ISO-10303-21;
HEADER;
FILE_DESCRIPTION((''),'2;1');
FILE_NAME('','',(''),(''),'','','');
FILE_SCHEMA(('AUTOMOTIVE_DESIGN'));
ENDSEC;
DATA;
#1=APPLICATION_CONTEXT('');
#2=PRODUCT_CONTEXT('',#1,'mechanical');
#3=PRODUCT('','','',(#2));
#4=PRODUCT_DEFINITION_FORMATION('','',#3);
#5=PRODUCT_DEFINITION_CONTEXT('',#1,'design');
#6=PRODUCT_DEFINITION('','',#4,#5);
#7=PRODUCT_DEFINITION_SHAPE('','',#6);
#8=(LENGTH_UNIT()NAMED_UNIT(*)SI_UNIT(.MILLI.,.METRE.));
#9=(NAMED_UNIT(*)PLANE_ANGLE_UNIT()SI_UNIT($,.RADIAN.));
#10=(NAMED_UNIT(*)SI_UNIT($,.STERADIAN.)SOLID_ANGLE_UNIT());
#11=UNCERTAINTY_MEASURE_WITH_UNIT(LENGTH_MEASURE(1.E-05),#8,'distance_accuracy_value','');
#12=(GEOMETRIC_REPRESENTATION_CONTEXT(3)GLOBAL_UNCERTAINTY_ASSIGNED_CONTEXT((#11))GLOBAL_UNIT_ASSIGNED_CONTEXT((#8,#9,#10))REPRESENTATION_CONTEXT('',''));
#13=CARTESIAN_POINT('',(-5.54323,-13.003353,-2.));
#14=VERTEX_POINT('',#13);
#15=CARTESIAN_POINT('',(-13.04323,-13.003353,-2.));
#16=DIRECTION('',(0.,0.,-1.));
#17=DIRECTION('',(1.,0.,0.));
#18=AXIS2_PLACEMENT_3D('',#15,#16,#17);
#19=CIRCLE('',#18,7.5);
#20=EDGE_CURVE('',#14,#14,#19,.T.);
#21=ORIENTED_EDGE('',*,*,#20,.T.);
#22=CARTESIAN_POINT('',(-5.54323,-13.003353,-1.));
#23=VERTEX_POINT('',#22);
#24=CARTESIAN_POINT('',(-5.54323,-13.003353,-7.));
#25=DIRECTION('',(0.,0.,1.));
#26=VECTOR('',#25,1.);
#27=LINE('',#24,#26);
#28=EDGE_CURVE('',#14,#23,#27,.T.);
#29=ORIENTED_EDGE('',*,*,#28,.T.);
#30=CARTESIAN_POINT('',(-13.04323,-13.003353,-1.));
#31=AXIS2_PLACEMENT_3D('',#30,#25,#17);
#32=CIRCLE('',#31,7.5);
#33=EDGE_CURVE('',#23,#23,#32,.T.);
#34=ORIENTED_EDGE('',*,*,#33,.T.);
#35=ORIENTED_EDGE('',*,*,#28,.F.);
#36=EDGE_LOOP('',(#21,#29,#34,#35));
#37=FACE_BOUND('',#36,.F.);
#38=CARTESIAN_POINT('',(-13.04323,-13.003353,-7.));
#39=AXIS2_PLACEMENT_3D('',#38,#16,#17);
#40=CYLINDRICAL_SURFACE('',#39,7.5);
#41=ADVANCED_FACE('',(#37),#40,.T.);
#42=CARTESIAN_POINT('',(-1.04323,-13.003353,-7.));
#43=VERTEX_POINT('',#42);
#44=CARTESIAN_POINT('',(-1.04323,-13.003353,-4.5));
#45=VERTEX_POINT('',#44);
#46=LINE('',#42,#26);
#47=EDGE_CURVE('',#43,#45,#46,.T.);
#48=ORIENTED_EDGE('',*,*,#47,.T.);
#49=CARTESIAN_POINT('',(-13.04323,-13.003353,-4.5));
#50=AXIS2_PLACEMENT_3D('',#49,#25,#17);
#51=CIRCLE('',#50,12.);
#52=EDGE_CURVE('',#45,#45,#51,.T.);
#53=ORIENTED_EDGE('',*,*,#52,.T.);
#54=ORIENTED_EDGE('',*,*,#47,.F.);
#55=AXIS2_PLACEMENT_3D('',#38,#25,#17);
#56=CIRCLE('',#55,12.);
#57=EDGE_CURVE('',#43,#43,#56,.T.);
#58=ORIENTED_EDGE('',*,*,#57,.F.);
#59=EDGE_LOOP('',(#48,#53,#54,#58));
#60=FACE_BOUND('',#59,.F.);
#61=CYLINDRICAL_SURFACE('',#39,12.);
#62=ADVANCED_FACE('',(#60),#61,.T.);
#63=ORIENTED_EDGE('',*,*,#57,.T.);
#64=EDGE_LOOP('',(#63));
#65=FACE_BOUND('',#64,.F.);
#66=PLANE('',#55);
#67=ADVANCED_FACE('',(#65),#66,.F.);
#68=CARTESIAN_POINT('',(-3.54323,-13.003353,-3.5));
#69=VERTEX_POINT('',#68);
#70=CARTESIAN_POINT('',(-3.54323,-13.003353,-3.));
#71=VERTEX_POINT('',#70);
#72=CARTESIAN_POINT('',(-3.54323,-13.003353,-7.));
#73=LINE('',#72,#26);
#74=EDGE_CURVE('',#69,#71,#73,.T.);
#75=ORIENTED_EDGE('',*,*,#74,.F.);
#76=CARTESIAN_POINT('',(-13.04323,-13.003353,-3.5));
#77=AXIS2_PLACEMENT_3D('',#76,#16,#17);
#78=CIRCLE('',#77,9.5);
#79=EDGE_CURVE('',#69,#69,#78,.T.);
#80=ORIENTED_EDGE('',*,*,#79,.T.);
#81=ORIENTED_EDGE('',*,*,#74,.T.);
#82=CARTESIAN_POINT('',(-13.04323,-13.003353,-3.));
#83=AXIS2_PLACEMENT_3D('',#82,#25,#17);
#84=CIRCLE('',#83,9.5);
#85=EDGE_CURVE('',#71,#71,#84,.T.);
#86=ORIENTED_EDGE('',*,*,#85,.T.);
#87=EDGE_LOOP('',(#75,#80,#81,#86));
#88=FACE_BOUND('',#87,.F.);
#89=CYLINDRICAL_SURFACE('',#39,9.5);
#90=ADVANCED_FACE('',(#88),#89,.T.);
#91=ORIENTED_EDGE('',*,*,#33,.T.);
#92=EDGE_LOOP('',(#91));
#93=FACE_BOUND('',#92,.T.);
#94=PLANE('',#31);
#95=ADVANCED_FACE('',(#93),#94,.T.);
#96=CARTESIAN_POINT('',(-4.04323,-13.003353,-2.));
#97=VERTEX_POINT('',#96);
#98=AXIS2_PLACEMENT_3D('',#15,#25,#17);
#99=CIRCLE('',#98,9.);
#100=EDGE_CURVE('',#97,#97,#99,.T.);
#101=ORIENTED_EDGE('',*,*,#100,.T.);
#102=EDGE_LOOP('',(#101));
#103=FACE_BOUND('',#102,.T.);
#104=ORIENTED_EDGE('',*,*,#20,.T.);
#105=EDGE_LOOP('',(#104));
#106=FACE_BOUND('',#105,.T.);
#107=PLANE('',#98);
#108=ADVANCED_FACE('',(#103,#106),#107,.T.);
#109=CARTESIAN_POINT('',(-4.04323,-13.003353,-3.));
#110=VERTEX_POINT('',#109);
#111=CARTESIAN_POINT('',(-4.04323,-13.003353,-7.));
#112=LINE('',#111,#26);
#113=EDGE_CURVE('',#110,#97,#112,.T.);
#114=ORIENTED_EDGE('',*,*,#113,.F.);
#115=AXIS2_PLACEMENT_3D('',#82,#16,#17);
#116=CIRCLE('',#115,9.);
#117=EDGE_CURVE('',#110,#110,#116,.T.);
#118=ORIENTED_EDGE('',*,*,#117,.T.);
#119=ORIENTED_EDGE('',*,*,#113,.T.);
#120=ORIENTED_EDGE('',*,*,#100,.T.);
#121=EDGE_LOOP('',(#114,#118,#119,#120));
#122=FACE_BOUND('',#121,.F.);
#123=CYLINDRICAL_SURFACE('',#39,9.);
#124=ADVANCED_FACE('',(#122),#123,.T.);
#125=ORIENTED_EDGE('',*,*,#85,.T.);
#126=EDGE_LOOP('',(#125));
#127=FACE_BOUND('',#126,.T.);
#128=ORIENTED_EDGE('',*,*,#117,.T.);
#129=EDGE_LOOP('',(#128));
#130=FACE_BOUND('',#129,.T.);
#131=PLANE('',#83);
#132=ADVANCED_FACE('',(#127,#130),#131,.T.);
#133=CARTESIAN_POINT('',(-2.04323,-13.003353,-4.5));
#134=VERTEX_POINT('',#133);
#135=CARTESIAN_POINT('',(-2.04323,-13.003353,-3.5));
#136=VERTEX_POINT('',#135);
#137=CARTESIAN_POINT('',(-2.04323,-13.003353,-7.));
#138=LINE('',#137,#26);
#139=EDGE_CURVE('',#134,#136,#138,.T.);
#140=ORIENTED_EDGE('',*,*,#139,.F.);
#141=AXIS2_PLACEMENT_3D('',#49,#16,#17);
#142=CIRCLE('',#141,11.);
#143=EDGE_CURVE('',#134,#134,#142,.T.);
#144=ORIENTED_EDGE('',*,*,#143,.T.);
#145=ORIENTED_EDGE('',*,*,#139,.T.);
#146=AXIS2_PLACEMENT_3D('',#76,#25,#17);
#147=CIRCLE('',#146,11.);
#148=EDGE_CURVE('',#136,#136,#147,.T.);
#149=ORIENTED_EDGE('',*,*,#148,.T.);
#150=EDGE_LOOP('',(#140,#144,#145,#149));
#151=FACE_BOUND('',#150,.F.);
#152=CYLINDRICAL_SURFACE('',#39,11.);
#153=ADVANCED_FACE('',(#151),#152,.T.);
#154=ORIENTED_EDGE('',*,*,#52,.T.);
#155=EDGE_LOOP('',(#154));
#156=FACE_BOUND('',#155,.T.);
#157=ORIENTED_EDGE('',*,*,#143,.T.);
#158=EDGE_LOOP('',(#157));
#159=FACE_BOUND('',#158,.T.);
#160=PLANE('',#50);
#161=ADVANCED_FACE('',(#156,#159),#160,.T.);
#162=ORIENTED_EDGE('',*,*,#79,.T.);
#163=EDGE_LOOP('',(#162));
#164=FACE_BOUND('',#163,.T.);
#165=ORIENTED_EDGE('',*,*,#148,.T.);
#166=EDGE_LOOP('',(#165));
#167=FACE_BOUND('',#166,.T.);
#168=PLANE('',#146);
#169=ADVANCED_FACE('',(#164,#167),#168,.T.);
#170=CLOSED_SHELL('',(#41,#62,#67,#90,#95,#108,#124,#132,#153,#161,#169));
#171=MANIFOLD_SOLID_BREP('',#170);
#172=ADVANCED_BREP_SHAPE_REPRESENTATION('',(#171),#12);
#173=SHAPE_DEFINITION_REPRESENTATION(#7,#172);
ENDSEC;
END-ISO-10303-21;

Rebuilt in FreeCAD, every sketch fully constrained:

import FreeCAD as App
import Part
import Sketcher

doc = App.newDocument("Part")
body = doc.addObject("PartDesign::Body", "Body")

sketch1 = doc.addObject("Sketcher::SketchObject", "Sketch")
body.addObject(sketch1)
sketch1.AttachmentSupport = (doc.XY_Plane, [""])
sketch1.MapMode = "FlatFace"
sketch1.addGeometry(Part.Circle(App.Vector(0, 0, 0), App.Vector(0, 0, 1), 9), False)
sketch1.addConstraint(Sketcher.Constraint("Coincident", 0, 3, -1, 1))
sketch1.addConstraint(Sketcher.Constraint("Diameter", 0, 18.0))
pad1 = doc.addObject("PartDesign::Pad", "Pad")
body.addObject(pad1)
pad1.Profile = sketch1
pad1.Length = 5
body2 = doc.addObject("PartDesign::Body", "Body001")

sketch2 = doc.addObject("Sketcher::SketchObject", "Sketch001")
body2.addObject(sketch2)
sketch2.AttachmentSupport = (doc.getObject("XY_Plane001"), [""])
sketch2.MapMode = "FlatFace"
sketch2.addGeometry(Part.Circle(App.Vector(0, 0, 0), App.Vector(0, 0, 1), 10), False)
sketch2.addConstraint(Sketcher.Constraint("Coincident", 0, 3, -1, 1))
sketch2.addConstraint(Sketcher.Constraint("Diameter", 0, 19.0))
pad2 = doc.addObject("PartDesign::Pad", "Pad001")
body2.addObject(pad2)
pad2.Profile = sketch2
pad2.Length = 4
body3 = doc.addObject("PartDesign::Body", "Body002")

sketch3 = doc.addObject("Sketcher::SketchObject", "Sketch002")
body3.addObject(sketch3)
sketch3.AttachmentSupport = (doc.getObject("XY_Plane002"), [""])
sketch3.MapMode = "FlatFace"
sketch3.addGeometry(Part.Circle(App.Vector(0, 0, 0), App.Vector(0, 0, 1), 11), False)
sketch3.addConstraint(Sketcher.Constraint("Coincident", 0, 3, -1, 1))
sketch3.addConstraint(Sketcher.Constraint("Diameter", 0, 22.0))
pad3 = doc.addObject("PartDesign::Pad", "Pad002")
body3.addObject(pad3)
pad3.Profile = sketch3
pad3.Length = 3.5
body4 = doc.addObject("PartDesign::Body", "Body003")

sketch4 = doc.addObject("Sketcher::SketchObject", "Sketch003")
body4.addObject(sketch4)
sketch4.AttachmentSupport = (doc.getObject("XY_Plane003"), [""])
sketch4.MapMode = "FlatFace"
sketch4.addGeometry(Part.Circle(App.Vector(0, 0, 0), App.Vector(0, 0, 1), 12), False)
sketch4.addConstraint(Sketcher.Constraint("Coincident", 0, 3, -1, 1))
sketch4.addConstraint(Sketcher.Constraint("Diameter", 0, 24.0))
pad4 = doc.addObject("PartDesign::Pad", "Pad003")
body4.addObject(pad4)
pad4.Profile = sketch4
pad4.Length = 2.5
body5 = doc.addObject("PartDesign::Body", "Body004")

sketch5 = doc.addObject("Sketcher::SketchObject", "Sketch004")
body5.addObject(sketch5)
sketch5.AttachmentSupport = (doc.getObject("XY_Plane004"), [""])
sketch5.MapMode = "FlatFace"
sketch5.addGeometry(Part.Circle(App.Vector(0, 0, 0), App.Vector(0, 0, 1), 8), False)
sketch5.addConstraint(Sketcher.Constraint("Coincident", 0, 3, -1, 1))
sketch5.addConstraint(Sketcher.Constraint("Diameter", 0, 15.0))
pad5 = doc.addObject("PartDesign::Pad", "Pad004")
body5.addObject(pad5)
pad5.Profile = sketch5
pad5.Length = 6
doc.recompute()

boolean = doc.addObject("PartDesign::Boolean", "Boolean")
body5.addObject(boolean)
boolean.Type = "Fuse"
boolean.addObjects([body])
doc.recompute()

boolean2 = doc.addObject("PartDesign::Boolean", "Boolean001")
body5.addObject(boolean2)
boolean2.Type = "Fuse"
boolean2.addObjects([body2])
doc.recompute()

boolean3 = doc.addObject("PartDesign::Boolean", "Boolean002")
body5.addObject(boolean3)
boolean3.Type = "Fuse"
boolean3.addObjects([body3])
doc.recompute()

boolean4 = doc.addObject("PartDesign::Boolean", "Boolean003")
body5.addObject(boolean4)
boolean4.Type = "Fuse"
boolean4.addObjects([body4])
body6 = doc.addObject("PartDesign::Body", "Body005")
doc.recompute()

body5.Placement = App.Placement(App.Vector(-13.04323, -13.003353, -7), App.Rotation(App.Vector(0, 0, 1), 0))
boolean5 = doc.addObject("PartDesign::Boolean", "Boolean004")
body6.addObject(boolean5)
boolean5.Type = "Fuse"
boolean5.addObjects([body5])

doc.recompute()
